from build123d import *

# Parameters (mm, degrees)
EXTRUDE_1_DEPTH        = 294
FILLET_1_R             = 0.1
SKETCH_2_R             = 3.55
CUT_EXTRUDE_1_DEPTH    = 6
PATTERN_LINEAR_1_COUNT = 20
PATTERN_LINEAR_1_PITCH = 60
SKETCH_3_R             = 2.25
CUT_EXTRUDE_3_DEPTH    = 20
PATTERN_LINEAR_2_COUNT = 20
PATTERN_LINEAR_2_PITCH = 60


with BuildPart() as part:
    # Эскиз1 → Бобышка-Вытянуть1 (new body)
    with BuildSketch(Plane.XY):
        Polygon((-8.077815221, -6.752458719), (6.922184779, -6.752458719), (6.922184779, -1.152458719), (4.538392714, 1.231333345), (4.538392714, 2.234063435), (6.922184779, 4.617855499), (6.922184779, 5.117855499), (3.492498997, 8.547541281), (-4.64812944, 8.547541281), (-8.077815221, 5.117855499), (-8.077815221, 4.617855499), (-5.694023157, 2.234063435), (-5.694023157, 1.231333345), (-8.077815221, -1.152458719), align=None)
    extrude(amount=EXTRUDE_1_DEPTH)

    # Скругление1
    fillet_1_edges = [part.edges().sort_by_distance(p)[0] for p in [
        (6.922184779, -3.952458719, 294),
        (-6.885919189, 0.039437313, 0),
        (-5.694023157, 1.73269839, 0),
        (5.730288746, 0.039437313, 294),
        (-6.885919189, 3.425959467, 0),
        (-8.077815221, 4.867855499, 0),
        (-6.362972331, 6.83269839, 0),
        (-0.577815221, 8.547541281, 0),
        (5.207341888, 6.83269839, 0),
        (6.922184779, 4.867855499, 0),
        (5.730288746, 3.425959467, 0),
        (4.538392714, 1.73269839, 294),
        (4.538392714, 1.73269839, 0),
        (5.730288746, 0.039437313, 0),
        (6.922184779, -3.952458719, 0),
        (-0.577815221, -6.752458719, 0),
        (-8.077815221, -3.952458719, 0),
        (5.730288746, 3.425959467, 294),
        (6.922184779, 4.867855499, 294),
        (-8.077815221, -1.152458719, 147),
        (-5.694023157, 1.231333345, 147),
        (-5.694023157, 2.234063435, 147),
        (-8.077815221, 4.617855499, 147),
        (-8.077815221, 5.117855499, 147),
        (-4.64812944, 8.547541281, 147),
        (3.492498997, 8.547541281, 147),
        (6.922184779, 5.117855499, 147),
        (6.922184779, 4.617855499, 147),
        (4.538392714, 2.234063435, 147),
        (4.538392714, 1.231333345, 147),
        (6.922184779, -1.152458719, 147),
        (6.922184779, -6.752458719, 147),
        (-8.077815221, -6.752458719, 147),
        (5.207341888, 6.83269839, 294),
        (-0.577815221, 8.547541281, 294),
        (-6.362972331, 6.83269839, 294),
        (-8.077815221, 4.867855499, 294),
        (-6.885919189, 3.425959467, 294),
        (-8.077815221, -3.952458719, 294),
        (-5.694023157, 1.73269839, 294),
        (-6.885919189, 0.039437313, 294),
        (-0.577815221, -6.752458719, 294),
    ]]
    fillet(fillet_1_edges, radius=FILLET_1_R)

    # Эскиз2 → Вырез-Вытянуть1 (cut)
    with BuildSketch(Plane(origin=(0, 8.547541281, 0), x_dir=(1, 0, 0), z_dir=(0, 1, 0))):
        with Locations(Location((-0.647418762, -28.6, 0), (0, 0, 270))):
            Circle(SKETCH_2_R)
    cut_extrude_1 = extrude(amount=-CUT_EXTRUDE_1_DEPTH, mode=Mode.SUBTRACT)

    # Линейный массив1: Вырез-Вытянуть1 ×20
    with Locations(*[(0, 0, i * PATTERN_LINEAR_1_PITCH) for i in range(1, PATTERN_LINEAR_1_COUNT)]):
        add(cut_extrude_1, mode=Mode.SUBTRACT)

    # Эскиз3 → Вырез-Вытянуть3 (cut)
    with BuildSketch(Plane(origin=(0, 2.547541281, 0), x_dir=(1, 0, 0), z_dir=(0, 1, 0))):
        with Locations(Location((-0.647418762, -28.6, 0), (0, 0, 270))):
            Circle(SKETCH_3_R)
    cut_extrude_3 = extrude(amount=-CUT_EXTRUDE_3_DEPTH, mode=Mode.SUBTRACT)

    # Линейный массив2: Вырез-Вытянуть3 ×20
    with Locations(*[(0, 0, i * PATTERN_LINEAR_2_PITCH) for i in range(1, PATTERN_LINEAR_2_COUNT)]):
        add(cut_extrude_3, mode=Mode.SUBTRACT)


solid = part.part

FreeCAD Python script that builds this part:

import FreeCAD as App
import Part
import Sketcher
from FreeCAD import Vector

doc = App.newDocument("Part")
params = doc.addObject("Spreadsheet::Sheet", "Params")
for row, (alias, value) in enumerate([
    ("sketch1_width", "15 mm"),
    ("sketch1_height", "5.6 mm"),
    ("sketch1_height2", "0.5 mm"),
    ("pad1_length", "294 mm"),
    ("fillet_radius", "0.1 mm"),
    ("sketch2_diameter", "7.1 mm"),
    ("pocket1_length", "6 mm"),
    ("linearpattern_pitch", "60 mm"),
    ("sketch3_diameter", "4.5 mm"),
    ("pocket2_length", "20 mm"),
    ("linearpattern2_pitch", "60 mm"),
], start=1):
    params.set(f"A{row}", alias)
    params.set(f"B{row}", "=" + value)
    params.setAlias(f"B{row}", alias)

body = doc.addObject("PartDesign::Body", "Body")

# Sketch on XY plane
sketch1 = body.newObject("Sketcher::SketchObject", "Sketch")
sketch1.AttachmentSupport = (doc.getObject("XY_Plane"), [""])
sketch1.MapMode = "FlatFace"
sketch1.addGeometry([
    Part.LineSegment(Vector(-8.1, -6.8, 0), Vector(6.9, -6.8, 0)),  # 0
    Part.LineSegment(Vector(6.9, -6.8, 0), Vector(6.9, -1.2, 0)),  # 1
    Part.LineSegment(Vector(6.9, -1.2, 0), Vector(4.5, 1.2, 0)),  # 2
    Part.LineSegment(Vector(4.5, 1.2, 0), Vector(4.5, 2.2, 0)),  # 3
    Part.LineSegment(Vector(4.5, 2.2, 0), Vector(6.9, 4.6, 0)),  # 4
    Part.LineSegment(Vector(6.9, 4.6, 0), Vector(6.9, 5.1, 0)),  # 5
    Part.LineSegment(Vector(6.9, 5.1, 0), Vector(3.5, 8.5, 0)),  # 6
    Part.LineSegment(Vector(3.5, 8.5, 0), Vector(-4.6, 8.5, 0)),  # 7
    Part.LineSegment(Vector(-4.6, 8.5, 0), Vector(-8.1, 5.1, 0)),  # 8
    Part.LineSegment(Vector(-8.1, 5.1, 0), Vector(-8.1, 4.6, 0)),  # 9
    Part.LineSegment(Vector(-8.1, 4.6, 0), Vector(-5.7, 2.2, 0)),  # 10
    Part.LineSegment(Vector(-5.7, 2.2, 0), Vector(-5.7, 1.2, 0)),  # 11
    Part.LineSegment(Vector(-5.7, 1.2, 0), Vector(-8.1, -1.2, 0)),  # 12
    Part.LineSegment(Vector(-8.1, -1.2, 0), Vector(-8.1, -6.8, 0)),  # 13
], False)
sketch1.addConstraint([
    Sketcher.Constraint("Coincident", 0, 2, 1, 1),
    Sketcher.Constraint("Coincident", 1, 2, 2, 1),
    Sketcher.Constraint("Coincident", 2, 2, 3, 1),
    Sketcher.Constraint("Coincident", 3, 2, 4, 1),
    Sketcher.Constraint("Coincident", 4, 2, 5, 1),
    Sketcher.Constraint("Coincident", 5, 2, 6, 1),
    Sketcher.Constraint("Coincident", 6, 2, 7, 1),
    Sketcher.Constraint("Coincident", 7, 2, 8, 1),
    Sketcher.Constraint("Coincident", 8, 2, 9, 1),
    Sketcher.Constraint("Coincident", 9, 2, 10, 1),
    Sketcher.Constraint("Coincident", 10, 2, 11, 1),
    Sketcher.Constraint("Coincident", 11, 2, 12, 1),
    Sketcher.Constraint("Coincident", 12, 2, 13, 1),
    Sketcher.Constraint("Coincident", 13, 2, 0, 1),
    Sketcher.Constraint("Horizontal", 0),
    Sketcher.Constraint("Vertical", 1),
    Sketcher.Constraint("Vertical", 3),
    Sketcher.Constraint("Vertical", 5),
    Sketcher.Constraint("Horizontal", 7),
    Sketcher.Constraint("Vertical", 9),
    Sketcher.Constraint("Vertical", 11),
    Sketcher.Constraint("Vertical", 13),
    Sketcher.Constraint("Perpendicular", 2, 4),
    Sketcher.Constraint("Perpendicular", 4, 6),
    Sketcher.Constraint("Perpendicular", 6, 8),
    Sketcher.Constraint("Perpendicular", 8, 10),
    Sketcher.Constraint("Perpendicular", 10, 12),
    Sketcher.Constraint("Horizontal", 5, 2, 8, 2),
    Sketcher.Constraint("Horizontal", 4, 2, 9, 2),
    Sketcher.Constraint("Horizontal", 3, 2, 10, 2),
    Sketcher.Constraint("Horizontal", 2, 2, 11, 2),
    Sketcher.Constraint("Horizontal", 1, 2, 12, 2),
    Sketcher.Constraint("Vertical", 1, 2, 4, 2),
    Sketcher.Constraint("Vertical", 9, 2, 12, 2),
    Sketcher.Constraint("DistanceX", 0, 1, 0, 2, 15.0),
    Sketcher.Constraint("DistanceY", 1, 1, 1, 2, 5.6),
    Sketcher.Constraint("DistanceY", 5, 1, 5, 2, 0.5),
    Sketcher.Constraint("DistanceY", 1, 2, 6, 2, 9.7),
    Sketcher.Constraint("DistanceX", 7, 2, 7, 1, 8.140628),
    Sketcher.Constraint("DistanceY", 3, 1, 3, 2, 1.00273),
    Sketcher.Constraint("DistanceX", -1, 1, 6, 2, 3.492499),
    Sketcher.Constraint("DistanceY", 0, 2, -1, 1, 6.752459),
])
sketch1.setExpression("Constraints[34]", "Params.sketch1_width")
sketch1.setExpression("Constraints[35]", "Params.sketch1_height")
sketch1.setExpression("Constraints[36]", "Params.sketch1_height2")
pad1 = body.newObject("PartDesign::Pad", "Pad")
pad1.Profile = sketch1
pad1.setExpression("Length", "Params.pad1_length")
doc.recompute()

fillet = body.newObject("PartDesign::Fillet", "Fillet")
fillet.Base = (pad1, ["Edge1"])
fillet.UseAllEdges = True
fillet.setExpression("Radius", "Params.fillet_radius")

# Sketch on XZ plane
sketch2 = body.newObject("Sketcher::SketchObject", "Sketch001")
sketch2.AttachmentSupport = (doc.getObject("XZ_Plane"), [""])
sketch2.MapMode = "FlatFace"
sketch2.AttachmentOffset = App.Placement(Vector(0, 0, -8.547541), App.Rotation())
sketch2.addGeometry(Part.Circle(Vector(-0.6, 28.6, 0), Vector(0, 0, 1), 3.5), False)
sketch2.addConstraint([
    Sketcher.Constraint("Diameter", 0, 7.1),
    Sketcher.Constraint("DistanceY", -1, 1, 0, 3, 28.6),
    Sketcher.Constraint("DistanceX", 0, 3, -1, 1, 0.647419),
])
sketch2.setExpression("Constraints[0]", "Params.sketch2_diameter")
pocket1 = body.newObject("PartDesign::Pocket", "Pocket")
pocket1.Profile = sketch2
pocket1.setExpression("Length", "Params.pocket1_length")
pocket1.Reversed = True
doc.recompute()

linearpattern = body.newObject("PartDesign::LinearPattern", "LinearPattern")
linearpattern.Originals = [pocket1]
linearpattern.Direction = (doc.getObject("Z_Axis"), [""])
linearpattern.Mode = "offset"
linearpattern.setExpression("Offset", "Params.linearpattern_pitch")
linearpattern.Occurrences = 20
body.Tip = linearpattern

# Sketch on XZ plane
sketch3 = body.newObject("Sketcher::SketchObject", "Sketch002")
sketch3.AttachmentSupport = (doc.getObject("XZ_Plane"), [""])
sketch3.MapMode = "FlatFace"
sketch3.AttachmentOffset = App.Placement(Vector(0, 0, -2.547541), App.Rotation())
sketch3.addGeometry(Part.Circle(Vector(-0.6, 28.6, 0), Vector(0, 0, 1), 2.2), False)
sketch3.addConstraint([
    Sketcher.Constraint("Diameter", 0, 4.5),
    Sketcher.Constraint("DistanceY", -1, 1, 0, 3, 28.6),
    Sketcher.Constraint("DistanceX", 0, 3, -1, 1, 0.647419),
])
sketch3.setExpression("Constraints[0]", "Params.sketch3_diameter")
pocket2 = body.newObject("PartDesign::Pocket", "Pocket001")
pocket2.Profile = sketch3
pocket2.setExpression("Length", "Params.pocket2_length")
pocket2.Reversed = True
doc.recompute()

linearpattern2 = body.newObject("PartDesign::LinearPattern", "LinearPattern001")
linearpattern2.Originals = [pocket2]
linearpattern2.Direction = (doc.getObject("Z_Axis"), [""])
linearpattern2.Mode = "offset"
linearpattern2.setExpression("Offset", "Params.linearpattern2_pitch")
linearpattern2.Occurrences = 20
body.Tip = linearpattern2

doc.recompute()
